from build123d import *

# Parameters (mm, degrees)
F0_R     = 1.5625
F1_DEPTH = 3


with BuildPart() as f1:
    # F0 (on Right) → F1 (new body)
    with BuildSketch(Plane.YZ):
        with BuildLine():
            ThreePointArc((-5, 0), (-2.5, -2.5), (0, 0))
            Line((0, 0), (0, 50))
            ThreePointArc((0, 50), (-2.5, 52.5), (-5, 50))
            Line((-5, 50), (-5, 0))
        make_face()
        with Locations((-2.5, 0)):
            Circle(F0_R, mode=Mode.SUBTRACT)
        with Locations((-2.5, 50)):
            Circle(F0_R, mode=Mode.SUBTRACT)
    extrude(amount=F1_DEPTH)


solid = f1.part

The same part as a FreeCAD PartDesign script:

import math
import FreeCAD as App
import Part
import Sketcher
from FreeCAD import Vector

doc = App.newDocument("Part")
params = doc.addObject("Spreadsheet::Sheet", "Params")
for row, (alias, value) in enumerate([
    ("sketch1_radius", "2.5 mm"),
    ("sketch1_height", "50 mm"),
    ("pad1_length", "3 mm"),
], start=1):
    params.set(f"A{row}", alias)
    params.set(f"B{row}", "=" + value)
    params.setAlias(f"B{row}", alias)

body = doc.addObject("PartDesign::Body", "Body")

# Sketch on YZ plane
sketch1 = body.newObject("Sketcher::SketchObject", "Sketch")
sketch1.AttachmentSupport = (doc.getObject("YZ_Plane"), [""])
sketch1.MapMode = "FlatFace"
sketch1.addGeometry(Part.ArcOfCircle(Part.Circle(Vector(-2.5, 0, 0), Vector(0, 0, 1), 2.5), math.radians(180), math.radians(360)), False)
sketch1.addGeometry(Part.LineSegment(Vector(0, 0, 0), Vector(0, 50, 0)), False)
sketch1.addGeometry(Part.ArcOfCircle(Part.Circle(Vector(-2.5, 50, 0), Vector(0, 0, 1), 2.5), math.radians(0), math.radians(180)), False)
sketch1.addGeometry(Part.LineSegment(Vector(-5, 50, 0), Vector(-5, 0, 0)), False)
sketch1.addGeometry(Part.Circle(Vector(-2.5, 0, 0), Vector(0, 0, 1), 1.6), False)
sketch1.addGeometry(Part.Circle(Vector(-2.5, 50, 0), Vector(0, 0, 1), 1.6), False)
sketch1.addConstraint(Sketcher.Constraint("Tangent", 0, 2, 1, 1))
sketch1.addConstraint(Sketcher.Constraint("Tangent", 1, 2, 2, 1))
sketch1.addConstraint(Sketcher.Constraint("Tangent", 2, 2, 3, 1))
sketch1.addConstraint(Sketcher.Constraint("Tangent", 3, 2, 0, 1))
sketch1.addConstraint(Sketcher.Constraint("Vertical", 1))
sketch1.addConstraint(Sketcher.Constraint("Vertical", 3))
sketch1.addConstraint(Sketcher.Constraint("Coincident", 0, 2, -1, 1))
sketch1.addConstraint(Sketcher.Constraint("Coincident", 4, 3, 0, 3))
sketch1.addConstraint(Sketcher.Constraint("Coincident", 5, 3, 2, 3))
sketch1.addConstraint(Sketcher.Constraint("Equal", 4, 5))
sketch1.addConstraint(Sketcher.Constraint("Radius", 0, 2.5))
sketch1.addConstraint(Sketcher.Constraint("DistanceY", 1, 1, 1, 2, 50.0))
sketch1.addConstraint(Sketcher.Constraint("Diameter", 4, 3.125))
sketch1.setExpression("Constraints[10]", "Params.sketch1_radius")
sketch1.setExpression("Constraints[11]", "Params.sketch1_height")
pad1 = body.newObject("PartDesign::Pad", "Pad")
pad1.Profile = sketch1
pad1.setExpression("Length", "Params.pad1_length")

doc.recompute()
